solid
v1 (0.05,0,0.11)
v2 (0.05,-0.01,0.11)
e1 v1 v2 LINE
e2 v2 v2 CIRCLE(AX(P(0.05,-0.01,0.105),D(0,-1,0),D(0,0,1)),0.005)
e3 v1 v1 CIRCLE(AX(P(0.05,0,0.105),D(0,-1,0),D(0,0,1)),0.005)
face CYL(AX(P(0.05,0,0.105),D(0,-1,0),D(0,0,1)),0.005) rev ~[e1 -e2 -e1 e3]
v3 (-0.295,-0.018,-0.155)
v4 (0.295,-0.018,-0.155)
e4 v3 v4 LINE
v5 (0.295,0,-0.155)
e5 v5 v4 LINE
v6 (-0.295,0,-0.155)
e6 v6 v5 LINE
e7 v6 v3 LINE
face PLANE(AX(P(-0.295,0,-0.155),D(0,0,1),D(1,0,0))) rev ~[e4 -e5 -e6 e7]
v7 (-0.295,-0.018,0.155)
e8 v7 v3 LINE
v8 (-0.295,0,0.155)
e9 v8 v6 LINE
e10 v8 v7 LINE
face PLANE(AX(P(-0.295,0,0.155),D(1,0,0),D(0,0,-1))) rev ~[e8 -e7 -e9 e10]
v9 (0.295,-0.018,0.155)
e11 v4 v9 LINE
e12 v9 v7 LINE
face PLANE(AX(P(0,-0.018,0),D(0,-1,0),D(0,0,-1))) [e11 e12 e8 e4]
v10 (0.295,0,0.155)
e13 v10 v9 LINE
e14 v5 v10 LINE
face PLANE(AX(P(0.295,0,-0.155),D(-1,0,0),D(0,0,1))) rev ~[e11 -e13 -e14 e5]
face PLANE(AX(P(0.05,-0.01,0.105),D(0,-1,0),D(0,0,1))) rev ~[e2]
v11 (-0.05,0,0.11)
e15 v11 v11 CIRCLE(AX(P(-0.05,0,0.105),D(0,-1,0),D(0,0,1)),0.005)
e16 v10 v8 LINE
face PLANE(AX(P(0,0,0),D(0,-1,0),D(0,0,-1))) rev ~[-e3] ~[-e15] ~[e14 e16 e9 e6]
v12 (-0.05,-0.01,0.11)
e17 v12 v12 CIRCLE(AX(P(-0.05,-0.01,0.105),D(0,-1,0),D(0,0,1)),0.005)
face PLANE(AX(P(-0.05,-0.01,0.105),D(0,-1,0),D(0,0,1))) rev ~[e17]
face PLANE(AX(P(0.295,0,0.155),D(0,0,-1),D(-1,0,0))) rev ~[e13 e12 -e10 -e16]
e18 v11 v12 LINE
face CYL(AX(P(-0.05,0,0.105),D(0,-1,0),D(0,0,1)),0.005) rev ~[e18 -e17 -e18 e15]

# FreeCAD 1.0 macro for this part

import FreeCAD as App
import Part
import Sketcher

doc = App.newDocument("Part")
body = doc.addObject("PartDesign::Body", "Body")

# Sketch on XZ plane
sketch1 = body.newObject("Sketcher::SketchObject", "Sketch")
sketch1.AttachmentSupport = (doc.getObject("XZ_Plane"), [""])
sketch1.MapMode = "FlatFace"
sketch1.addGeometry([
    Part.LineSegment(App.Vector(-0.29, 0.15, 0), App.Vector(-0.29, -0.15, 0)),
    Part.LineSegment(App.Vector(-0.29, -0.15, 0), App.Vector(0.29, -0.15, 0)),
    Part.LineSegment(App.Vector(0.29, -0.15, 0), App.Vector(0.29, 0.15, 0)),
    Part.LineSegment(App.Vector(0.29, 0.15, 0), App.Vector(-0.29, 0.15, 0)),
], False)
sketch1.addConstraint([
    Sketcher.Constraint("Coincident", 0, 2, 1, 1),
    Sketcher.Constraint("Coincident", 1, 2, 2, 1),
    Sketcher.Constraint("Coincident", 2, 2, 3, 1),
    Sketcher.Constraint("Coincident", 3, 2, 0, 1),
    Sketcher.Constraint("Vertical", 0),
    Sketcher.Constraint("Horizontal", 1),
    Sketcher.Constraint("Vertical", 2),
    Sketcher.Constraint("Horizontal", 3),
    Sketcher.Constraint("Symmetric", 0, 2, 2, 2, -1, 1),
    Sketcher.Constraint("DistanceX", 0, 2, -1, 1, 0.295),
    Sketcher.Constraint("DistanceY", 0, 2, 0, 1, 0.31),
])
pad1 = body.newObject("PartDesign::Pad", "Pad")
pad1.Profile = sketch1
pad1.Length = 0.018

# Sketch on XZ plane
sketch2 = body.newObject("Sketcher::SketchObject", "Sketch001")
sketch2.AttachmentSupport = (doc.getObject("XZ_Plane"), [""])
sketch2.MapMode = "FlatFace"
sketch2.addGeometry(Part.Circle(App.Vector(-0.05, 0.105, 0), App.Vector(0, 0, 1), 0.005), False)
sketch2.addConstraint([
    Sketcher.Constraint("Diameter", 0, 0.01),
    Sketcher.Constraint("DistanceX", 0, 3, -1, 1, 0.05),
    Sketcher.Constraint("DistanceY", -1, 1, 0, 3, 0.105),
])
doc.recompute()
hole = body.newObject("PartDesign::Hole", "Hole")
hole.Profile = sketch2
hole.ThreadType = "None"
hole.Diameter = 0.01
hole.DepthType = "Dimension"
hole.Depth = 0.01
hole.DrillPoint = "Flat"
hole.Reversed = True

# Sketch on XZ plane
sketch3 = body.newObject("Sketcher::SketchObject", "Sketch002")
sketch3.AttachmentSupport = (doc.getObject("XZ_Plane"), [""])
sketch3.MapMode = "FlatFace"
sketch3.addGeometry(Part.Circle(App.Vector(0.05, 0.105, 0), App.Vector(0, 0, 1), 0.005), False)
sketch3.addConstraint([
    Sketcher.Constraint("Diameter", 0, 0.01),
    Sketcher.Constraint("DistanceX", -1, 1, 0, 3, 0.05),
    Sketcher.Constraint("DistanceY", -1, 1, 0, 3, 0.105),
])
doc.recompute()
hole2 = body.newObject("PartDesign::Hole", "Hole001")
hole2.Profile = sketch3
hole2.ThreadType = "None"
hole2.Diameter = 0.01
hole2.DepthType = "Dimension"
hole2.Depth = 0.01
hole2.DrillPoint = "Flat"
hole2.Reversed = True

doc.recompute()
